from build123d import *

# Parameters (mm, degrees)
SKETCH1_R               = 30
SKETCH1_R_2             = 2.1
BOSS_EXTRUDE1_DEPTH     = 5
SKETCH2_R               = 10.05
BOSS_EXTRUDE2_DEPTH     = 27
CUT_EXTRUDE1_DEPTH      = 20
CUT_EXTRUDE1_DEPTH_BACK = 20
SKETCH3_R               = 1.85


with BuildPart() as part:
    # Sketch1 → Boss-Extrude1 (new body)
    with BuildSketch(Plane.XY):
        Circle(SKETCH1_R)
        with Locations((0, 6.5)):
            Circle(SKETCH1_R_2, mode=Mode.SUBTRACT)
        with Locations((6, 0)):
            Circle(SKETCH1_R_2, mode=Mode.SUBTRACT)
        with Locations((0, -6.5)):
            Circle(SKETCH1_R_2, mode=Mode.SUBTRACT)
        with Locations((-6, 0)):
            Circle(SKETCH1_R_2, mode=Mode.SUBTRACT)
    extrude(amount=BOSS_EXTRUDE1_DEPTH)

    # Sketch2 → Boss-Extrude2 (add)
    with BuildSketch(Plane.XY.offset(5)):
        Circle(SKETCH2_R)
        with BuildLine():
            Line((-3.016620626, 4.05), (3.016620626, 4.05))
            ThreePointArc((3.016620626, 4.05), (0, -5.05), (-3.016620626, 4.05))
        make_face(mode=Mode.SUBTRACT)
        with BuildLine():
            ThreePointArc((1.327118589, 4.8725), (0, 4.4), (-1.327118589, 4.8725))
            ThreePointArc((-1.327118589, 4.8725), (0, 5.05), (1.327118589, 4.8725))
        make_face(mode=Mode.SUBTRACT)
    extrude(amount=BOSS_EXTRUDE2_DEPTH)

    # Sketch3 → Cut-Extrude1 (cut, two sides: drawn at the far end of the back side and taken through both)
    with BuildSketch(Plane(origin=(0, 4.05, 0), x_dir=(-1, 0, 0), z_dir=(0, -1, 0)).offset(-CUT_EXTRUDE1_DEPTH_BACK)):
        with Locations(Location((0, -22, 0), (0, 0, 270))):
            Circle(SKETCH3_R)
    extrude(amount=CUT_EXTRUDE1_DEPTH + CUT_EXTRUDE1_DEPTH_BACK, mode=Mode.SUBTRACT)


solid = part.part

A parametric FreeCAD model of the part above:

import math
import FreeCAD as App
import Part
import Sketcher

V = App.Vector

doc = App.newDocument("Part")
params = doc.addObject("Spreadsheet::Sheet", "Params")
for row, (alias, value) in enumerate([
    ("sketch1_diameter", "60 mm"),
    ("sketch1_diameter2", "4.2 mm"),
    ("pad1_length", "5 mm"),
    ("sketch2_diameter", "20.1 mm"),
    ("sketch2_radius", "2.1 mm"),
    ("sketch2_radius2", "5.05 mm"),
    ("pad2_length", "27 mm"),
    ("sketch3_diameter", "3.7 mm"),
], start=1):
    params.set(f"A{row}", alias)
    params.set(f"B{row}", "=" + value)
    params.setAlias(f"B{row}", alias)

body = doc.addObject("PartDesign::Body", "Body")

# Sketch on XY plane
sketch1 = doc.addObject("Sketcher::SketchObject", "Sketch")
body.addObject(sketch1)
sketch1.AttachmentSupport = (doc.XY_Plane, [""])
sketch1.MapMode = "FlatFace"
sketch1.addGeometry([
    Part.Circle(V(0, 0, 0), V(0, 0, 1), 30),  # 0
    Part.Circle(V(0, -6.5, 0), V(0, 0, 1), 2.1),  # 1
    Part.Circle(V(-6, 0, 0), V(0, 0, 1), 2.1),  # 2
    Part.Circle(V(6, 0, 0), V(0, 0, 1), 2.1),  # 3
    Part.Circle(V(0, 6.5, 0), V(0, 0, 1), 2.1),  # 4
], False)
sketch1.addConstraint([
    Sketcher.Constraint("Coincident", 0, 3, -1, 1),
    Sketcher.Constraint("Equal", 1, 2),
    Sketcher.Constraint("Equal", 2, 3),
    Sketcher.Constraint("Equal", 3, 4),
    Sketcher.Constraint("Symmetric", 2, 3, 3, 3, -1, 1),
    Sketcher.Constraint("Symmetric", 1, 3, 4, 3, -1, 1),
    Sketcher.Constraint("PointOnObject", 1, 3, -2),
    Sketcher.Constraint("PointOnObject", 2, 3, -1),
    Sketcher.Constraint("Diameter", 0, 60.0),
    Sketcher.Constraint("Diameter", 1, 4.2),
    Sketcher.Constraint("DistanceX", 2, 3, -1, 1, 6.0),
    Sketcher.Constraint("DistanceY", 1, 3, 4, 3, 13.0),
])
sketch1.setExpression("Constraints[8]", "Params.sketch1_diameter")
sketch1.setExpression("Constraints[9]", "Params.sketch1_diameter2")
pad1 = doc.addObject("PartDesign::Pad", "Pad")
body.addObject(pad1)
pad1.Profile = sketch1
pad1.setExpression("Length", "Params.pad1_length")

# Sketch on XY plane
sketch2 = doc.addObject("Sketcher::SketchObject", "Sketch001")
body.addObject(sketch2)
sketch2.AttachmentSupport = (doc.XY_Plane, [""])
sketch2.MapMode = "FlatFace"
sketch2.AttachmentOffset = App.Placement(V(0, 0, 5), App.Rotation())
sketch2.addGeometry([
    Part.Circle(V(0, 0, 0), V(0, 0, 1), 10.05),  # 0
    Part.ArcOfCircle(Part.Circle(V(0, 0, 0), V(0, 0, 1), 5.05), math.radians(126.680384), math.radians(413.319616)),  # 1
    Part.LineSegment(V(-3.016621, 4.05, 0), V(3.016621, 4.05, 0)),  # 2
    Part.ArcOfCircle(Part.Circle(V(0, 0, 0), V(0, 0, 1), 5.05), math.radians(74.763982), math.radians(105.236018)),  # 3
    Part.ArcOfCircle(Part.Circle(V(0, 6.5, 0), V(0, 0, 1), 2.1), math.radians(-129.194967), math.radians(-50.805033)),  # 4
], False)
sketch2.addConstraint([
    Sketcher.Constraint("Coincident", 1, 1, 2, 1),
    Sketcher.Constraint("Coincident", 2, 2, 1, 2),
    Sketcher.Constraint("Coincident", 3, 1, 4, 2),
    Sketcher.Constraint("Coincident", 4, 1, 3, 2),
    Sketcher.Constraint("Horizontal", 2),
    Sketcher.Constraint("Coincident", 0, 3, -1, 1),
    Sketcher.Constraint("Coincident", 1, 3, -1, 1),
    Sketcher.Constraint("Coincident", 3, 3, -1, 1),
    Sketcher.Constraint("Equal", 1, 3),
    Sketcher.Constraint("PointOnObject", 4, 3, -2),
    Sketcher.Constraint("Diameter", 0, 20.1),
    Sketcher.Constraint("Radius", 4, 2.1),
    Sketcher.Constraint("Radius", 1, 5.05),
    Sketcher.Constraint("DistanceY", -1, 1, 4, 3, 6.5),
    Sketcher.Constraint("DistanceY", -1, 1, 1, 1, 4.05),
])
sketch2.setExpression("Constraints[10]", "Params.sketch2_diameter")
sketch2.setExpression("Constraints[11]", "Params.sketch2_radius")
sketch2.setExpression("Constraints[12]", "Params.sketch2_radius2")
pad2 = doc.addObject("PartDesign::Pad", "Pad001")
body.addObject(pad2)
pad2.Profile = sketch2
pad2.setExpression("Length", "Params.pad2_length")

# Sketch on XZ plane
sketch3 = doc.addObject("Sketcher::SketchObject", "Sketch002")
body.addObject(sketch3)
sketch3.AttachmentSupport = (doc.XZ_Plane, [""])
sketch3.MapMode = "FlatFace"
sketch3.AttachmentOffset = App.Placement(V(0, 0, -4.05), App.Rotation())
sketch3.addGeometry(Part.Circle(V(0, 22, 0), V(0, 0, 1), 1.85), False)
sketch3.addConstraint([
    Sketcher.Constraint("PointOnObject", 0, 3, -2),
    Sketcher.Constraint("Diameter", 0, 3.7),
    Sketcher.Constraint("DistanceY", -1, 1, 0, 3, 22.0),
])
sketch3.setExpression("Constraints[1]", "Params.sketch3_diameter")
pocket1 = doc.addObject("PartDesign::Pocket", "Pocket")
body.addObject(pocket1)
pocket1.Profile = sketch3
pocket1.Type = "ThroughAll"
pocket1.Midplane = True

doc.recompute()
